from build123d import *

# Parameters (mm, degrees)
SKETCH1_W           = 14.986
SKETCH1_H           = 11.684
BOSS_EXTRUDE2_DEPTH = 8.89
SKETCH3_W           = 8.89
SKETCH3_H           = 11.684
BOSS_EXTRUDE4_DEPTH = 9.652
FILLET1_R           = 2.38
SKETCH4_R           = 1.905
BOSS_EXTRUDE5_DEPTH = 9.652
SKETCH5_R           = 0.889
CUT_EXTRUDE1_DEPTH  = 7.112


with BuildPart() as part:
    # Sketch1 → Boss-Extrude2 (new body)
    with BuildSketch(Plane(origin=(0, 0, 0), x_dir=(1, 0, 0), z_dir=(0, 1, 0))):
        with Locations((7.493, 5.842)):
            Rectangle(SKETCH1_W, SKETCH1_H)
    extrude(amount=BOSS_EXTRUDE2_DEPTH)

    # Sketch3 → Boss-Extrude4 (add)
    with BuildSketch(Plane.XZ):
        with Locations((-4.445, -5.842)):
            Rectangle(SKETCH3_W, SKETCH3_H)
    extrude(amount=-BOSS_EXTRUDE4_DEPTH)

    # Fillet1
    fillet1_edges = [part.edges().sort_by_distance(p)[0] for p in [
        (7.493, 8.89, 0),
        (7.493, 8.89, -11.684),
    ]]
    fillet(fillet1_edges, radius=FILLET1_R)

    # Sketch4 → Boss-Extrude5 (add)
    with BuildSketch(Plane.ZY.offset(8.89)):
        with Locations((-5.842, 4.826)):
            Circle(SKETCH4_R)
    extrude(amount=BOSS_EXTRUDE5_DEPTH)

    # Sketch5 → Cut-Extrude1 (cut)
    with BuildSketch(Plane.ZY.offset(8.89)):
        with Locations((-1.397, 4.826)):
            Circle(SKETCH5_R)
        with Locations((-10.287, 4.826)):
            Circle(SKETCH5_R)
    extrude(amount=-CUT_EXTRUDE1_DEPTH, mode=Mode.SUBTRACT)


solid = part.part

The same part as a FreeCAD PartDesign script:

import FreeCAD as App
import Part
import Sketcher
from FreeCAD import Vector
Q = App.Units.Quantity


def edges_at(feature, points):
    """Names of the edges that pass closest to the given points."""
    edges = feature.Shape.Edges
    near = lambda p: min(range(len(edges)), key=lambda i: edges[i].distToShape(Part.Vertex(*p))[0])
    return sorted({f"Edge{near(p) + 1}" for p in points})

doc = App.newDocument("Part")
body = doc.addObject("PartDesign::Body", "Body")

sketch1 = doc.addObject("Sketcher::SketchObject", "Sketch")
body.addObject(sketch1)
sketch1.AttachmentSupport = (doc.XZ_Plane, [""])
sketch1.MapMode = "FlatFace"
sketch1.addGeometry(Part.LineSegment(Vector(0, -12, 0), Vector(0, 0, 0)), False)
sketch1.addGeometry(Part.LineSegment(Vector(0, 0, 0), Vector(15, 0, 0)), False)
sketch1.addGeometry(Part.LineSegment(Vector(15, 0, 0), Vector(15, -12, 0)), False)
sketch1.addGeometry(Part.LineSegment(Vector(15, -12, 0), Vector(0, -12, 0)), False)
sketch1.addConstraint(Sketcher.Constraint("Coincident", 0, 2, 1, 1))
sketch1.addConstraint(Sketcher.Constraint("Coincident", 1, 2, 2, 1))
sketch1.addConstraint(Sketcher.Constraint("Coincident", 2, 2, 3, 1))
sketch1.addConstraint(Sketcher.Constraint("Coincident", 3, 2, 0, 1))
sketch1.addConstraint(Sketcher.Constraint("Vertical", 0))
sketch1.addConstraint(Sketcher.Constraint("Horizontal", 1))
sketch1.addConstraint(Sketcher.Constraint("Vertical", 2))
sketch1.addConstraint(Sketcher.Constraint("Horizontal", 3))
sketch1.addConstraint(Sketcher.Constraint("Coincident", 0, 2, -1, 1))
sketch1.addConstraint(Sketcher.Constraint("DistanceX", 1, 1, 1, 2, Q("0.59 in")))
sketch1.addConstraint(Sketcher.Constraint("DistanceY", 0, 1, 0, 2, Q("0.46 in")))
pad1 = doc.addObject("PartDesign::Pad", "Pad")
body.addObject(pad1)
pad1.Profile = sketch1
pad1.Length = Q("0.35 in")
pad1.Reversed = True

sketch2 = doc.addObject("Sketcher::SketchObject", "Sketch001")
body.addObject(sketch2)
sketch2.AttachmentSupport = (doc.XZ_Plane, [""])
sketch2.MapMode = "FlatFace"
sketch2.addGeometry(Part.LineSegment(Vector(-9, 0, 0), Vector(-9, -12, 0)), False)
sketch2.addGeometry(Part.LineSegment(Vector(-9, -12, 0), Vector(0, -12, 0)), False)
sketch2.addGeometry(Part.LineSegment(Vector(0, -12, 0), Vector(0, 0, 0)), False)
sketch2.addGeometry(Part.LineSegment(Vector(0, 0, 0), Vector(-9, 0, 0)), False)
sketch2.addConstraint(Sketcher.Constraint("Coincident", 0, 2, 1, 1))
sketch2.addConstraint(Sketcher.Constraint("Coincident", 1, 2, 2, 1))
sketch2.addConstraint(Sketcher.Constraint("Coincident", 2, 2, 3, 1))
sketch2.addConstraint(Sketcher.Constraint("Coincident", 3, 2, 0, 1))
sketch2.addConstraint(Sketcher.Constraint("Vertical", 0))
sketch2.addConstraint(Sketcher.Constraint("Horizontal", 1))
sketch2.addConstraint(Sketcher.Constraint("Vertical", 2))
sketch2.addConstraint(Sketcher.Constraint("Horizontal", 3))
sketch2.addConstraint(Sketcher.Constraint("Coincident", 2, 2, -1, 1))
sketch2.addConstraint(Sketcher.Constraint("DistanceX", 1, 1, 1, 2, Q("0.35 in")))
sketch2.addConstraint(Sketcher.Constraint("DistanceY", 0, 2, 0, 1, Q("0.46 in")))
pad2 = doc.addObject("PartDesign::Pad", "Pad001")
body.addObject(pad2)
pad2.Profile = sketch2
pad2.Length = Q("0.38 in")
pad2.Reversed = True
doc.recompute()

fillet = doc.addObject("PartDesign::Fillet", "Fillet")
body.addObject(fillet)
fillet.Base = (pad2, edges_at(pad2, [(7.493, 8.89, 0), (7.493, 8.89, -11.684)]))
fillet.Radius = 2.38

sketch3 = doc.addObject("Sketcher::SketchObject", "Sketch002")
body.addObject(sketch3)
sketch3.AttachmentSupport = (doc.YZ_Plane, [""])
sketch3.MapMode = "FlatFace"
sketch3.AttachmentOffset = App.Placement(Vector(0, 0, -0.35 * 25.4), App.Rotation())
sketch3.addGeometry(Part.Circle(Vector(4.8, -5.8, 0), Vector(0, 0, 1), 1.9), False)
sketch3.addConstraint(Sketcher.Constraint("Diameter", 0, Q("0.15 in")))
sketch3.addConstraint(Sketcher.Constraint("DistanceX", -1, 1, 0, 3, Q("0.19 in")))
sketch3.addConstraint(Sketcher.Constraint("DistanceY", 0, 3, -1, 1, Q("0.23 in")))
pad3 = doc.addObject("PartDesign::Pad", "Pad002")
body.addObject(pad3)
pad3.Profile = sketch3
pad3.Length = Q("0.38 in")
pad3.Reversed = True

sketch4 = doc.addObject("Sketcher::SketchObject", "Sketch003")
body.addObject(sketch4)
sketch4.AttachmentSupport = (doc.YZ_Plane, [""])
sketch4.MapMode = "FlatFace"
sketch4.AttachmentOffset = App.Placement(Vector(0, 0, -0.35 * 25.4), App.Rotation())
sketch4.addGeometry(Part.Circle(Vector(4.8, -1.4, 0), Vector(0, 0, 1), 0.9), False)
sketch4.addGeometry(Part.Circle(Vector(4.8, -10.3, 0), Vector(0, 0, 1), 0.9), False)
sketch4.addConstraint(Sketcher.Constraint("Equal", 0, 1))
sketch4.addConstraint(Sketcher.Constraint("Vertical", 0, 3, 1, 3))
sketch4.addConstraint(Sketcher.Constraint("Diameter", 0, Q("0.07 in")))
sketch4.addConstraint(Sketcher.Constraint("DistanceX", -1, 1, 0, 3, Q("0.19 in")))
sketch4.addConstraint(Sketcher.Constraint("DistanceY", 1, 3, 0, 3, Q("0.35 in")))
sketch4.addConstraint(Sketcher.Constraint("DistanceY", 0, 3, -1, 1, Q("0.055 in")))
pocket1 = doc.addObject("PartDesign::Pocket", "Pocket")
body.addObject(pocket1)
pocket1.Profile = sketch4
pocket1.Length = Q("0.28 in")
pocket1.Reversed = True

doc.recompute()
